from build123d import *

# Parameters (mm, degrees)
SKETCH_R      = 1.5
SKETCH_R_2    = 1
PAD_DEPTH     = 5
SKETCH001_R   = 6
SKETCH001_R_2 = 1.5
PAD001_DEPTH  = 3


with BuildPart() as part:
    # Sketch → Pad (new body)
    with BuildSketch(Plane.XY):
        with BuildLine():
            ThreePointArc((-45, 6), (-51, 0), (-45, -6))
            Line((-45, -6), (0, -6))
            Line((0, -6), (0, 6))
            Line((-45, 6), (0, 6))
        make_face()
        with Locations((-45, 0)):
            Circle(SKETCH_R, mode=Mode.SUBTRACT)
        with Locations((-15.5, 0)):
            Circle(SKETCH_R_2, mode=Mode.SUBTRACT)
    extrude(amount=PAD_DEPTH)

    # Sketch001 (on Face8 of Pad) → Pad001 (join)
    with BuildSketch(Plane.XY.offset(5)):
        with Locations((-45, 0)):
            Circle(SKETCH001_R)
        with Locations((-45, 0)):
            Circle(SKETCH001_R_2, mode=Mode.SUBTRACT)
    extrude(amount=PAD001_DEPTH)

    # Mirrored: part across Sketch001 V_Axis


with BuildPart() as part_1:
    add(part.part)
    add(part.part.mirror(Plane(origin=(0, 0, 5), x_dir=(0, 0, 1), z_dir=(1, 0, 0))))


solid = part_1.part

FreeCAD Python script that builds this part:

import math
import FreeCAD as App
import Part
import Sketcher
from FreeCAD import Vector
Q = App.Units.Quantity

doc = App.newDocument("Part")
params = doc.addObject("Spreadsheet::Sheet", "Params")
for row, (alias, value) in enumerate([
    ("sketch1_diameter", "3 mm"),
    ("sketch1_diameter2", "2 mm"),
    ("sketch1_radius", "6 mm"),
    ("sketch1_width", "45 mm"),
    ("pad1_length", "5 mm"),
    ("sketch2_diameter", "12 mm"),
    ("sketch2_diameter2", "3 mm"),
    ("pad2_length", "3 mm"),
], start=1):
    params.set(f"A{row}", alias)
    params.set(f"B{row}", "=" + value)
    params.setAlias(f"B{row}", alias)

body = doc.addObject("PartDesign::Body", "Body")

# Sketch on XY plane
sketch1 = body.newObject("Sketcher::SketchObject", "Sketch")
sketch1.AttachmentSupport = (doc.getObject("XY_Plane"), [""])
sketch1.MapMode = "FlatFace"
sketch1.addGeometry(Part.ArcOfCircle(Part.Circle(Vector(-45, 0, 0), Vector(0, 0, 1), 6), math.radians(90), math.radians(270)), False)
sketch1.addGeometry(Part.LineSegment(Vector(-45, -6, 0), Vector(0, -6, 0)), False)
sketch1.addGeometry(Part.LineSegment(Vector(0, -6, 0), Vector(0, 6, 0)), False)
sketch1.addGeometry(Part.LineSegment(Vector(0, 6, 0), Vector(-45, 6, 0)), False)
sketch1.addGeometry(Part.Circle(Vector(-45, 0, 0), Vector(0, 0, 1), 1.5), False)
sketch1.addGeometry(Part.Circle(Vector(-15.5, 0, 0), Vector(0, 0, 1), 1), False)
sketch1.addConstraint(Sketcher.Constraint("Tangent", 0, 2, 1, 1))
sketch1.addConstraint(Sketcher.Constraint("Coincident", 1, 2, 2, 1))
sketch1.addConstraint(Sketcher.Constraint("Coincident", 2, 2, 3, 1))
sketch1.addConstraint(Sketcher.Constraint("Tangent", 3, 2, 0, 1))
sketch1.addConstraint(Sketcher.Constraint("Horizontal", 1))
sketch1.addConstraint(Sketcher.Constraint("Vertical", 2))
sketch1.addConstraint(Sketcher.Constraint("Horizontal", 3))
sketch1.addConstraint(Sketcher.Constraint("Coincident", 4, 3, 0, 3))
sketch1.addConstraint(Sketcher.Constraint("Symmetric", 1, 2, 2, 2, -1, 1))
sketch1.addConstraint(Sketcher.Constraint("PointOnObject", 5, 3, -1))
sketch1.addConstraint(Sketcher.Constraint("Diameter", 4, Q("3 mm")))
sketch1.addConstraint(Sketcher.Constraint("Diameter", 5, Q("2 mm")))
sketch1.addConstraint(Sketcher.Constraint("Radius", 0, Q("6 mm")))
sketch1.addConstraint(Sketcher.Constraint("DistanceX", 1, 1, 1, 2, Q("45 mm")))
sketch1.addConstraint(Sketcher.Constraint("DistanceX", 5, 3, -1, 1, Q("15.5 mm")))
sketch1.setExpression("Constraints[10]", "Params.sketch1_diameter")
sketch1.setExpression("Constraints[11]", "Params.sketch1_diameter2")
sketch1.setExpression("Constraints[12]", "Params.sketch1_radius")
sketch1.setExpression("Constraints[13]", "Params.sketch1_width")
pad1 = body.newObject("PartDesign::Pad", "Pad")
pad1.Profile = sketch1
pad1.setExpression("Length", "Params.pad1_length")

# Sketch on XY plane
sketch2 = body.newObject("Sketcher::SketchObject", "Sketch001")
sketch2.AttachmentSupport = (doc.getObject("XY_Plane"), [""])
sketch2.MapMode = "FlatFace"
sketch2.AttachmentOffset = App.Placement(Vector(0, 0, 5), App.Rotation())
sketch2.addGeometry(Part.Circle(Vector(-45, 0, 0), Vector(0, 0, 1), 6), False)
sketch2.addGeometry(Part.Circle(Vector(-45, 0, 0), Vector(0, 0, 1), 1.5), False)
sketch2.addConstraint(Sketcher.Constraint("Coincident", 1, 3, 0, 3))
sketch2.addConstraint(Sketcher.Constraint("PointOnObject", 0, 3, -1))
sketch2.addConstraint(Sketcher.Constraint("Diameter", 0, Q("12 mm")))
sketch2.addConstraint(Sketcher.Constraint("Diameter", 1, Q("3 mm")))
sketch2.addConstraint(Sketcher.Constraint("DistanceX", 0, 3, -1, 1, Q("45 mm")))
sketch2.setExpression("Constraints[2]", "Params.sketch2_diameter")
sketch2.setExpression("Constraints[3]", "Params.sketch2_diameter2")
pad2 = body.newObject("PartDesign::Pad", "Pad001")
pad2.Profile = sketch2
pad2.setExpression("Length", "Params.pad2_length")
body2 = doc.addObject("PartDesign::Body", "Body001")
doc.recompute()

body2.BaseFeature = body
doc.recompute()

mirroring = doc.addObject("Part::Mirroring", "Mirroring")
mirroring.Source = body
mirroring.Base = Vector(0, 0, 5)
mirroring.Normal = Vector(1, 0, 0)
body3 = doc.addObject("PartDesign::Body", "Body002")
body3.BaseFeature = mirroring
boolean = body2.newObject("PartDesign::Boolean", "Boolean")
boolean.Type = "Fuse"
boolean.addObjects([body3])
doc.recompute()
mirroring.Visibility = False

doc.recompute()
